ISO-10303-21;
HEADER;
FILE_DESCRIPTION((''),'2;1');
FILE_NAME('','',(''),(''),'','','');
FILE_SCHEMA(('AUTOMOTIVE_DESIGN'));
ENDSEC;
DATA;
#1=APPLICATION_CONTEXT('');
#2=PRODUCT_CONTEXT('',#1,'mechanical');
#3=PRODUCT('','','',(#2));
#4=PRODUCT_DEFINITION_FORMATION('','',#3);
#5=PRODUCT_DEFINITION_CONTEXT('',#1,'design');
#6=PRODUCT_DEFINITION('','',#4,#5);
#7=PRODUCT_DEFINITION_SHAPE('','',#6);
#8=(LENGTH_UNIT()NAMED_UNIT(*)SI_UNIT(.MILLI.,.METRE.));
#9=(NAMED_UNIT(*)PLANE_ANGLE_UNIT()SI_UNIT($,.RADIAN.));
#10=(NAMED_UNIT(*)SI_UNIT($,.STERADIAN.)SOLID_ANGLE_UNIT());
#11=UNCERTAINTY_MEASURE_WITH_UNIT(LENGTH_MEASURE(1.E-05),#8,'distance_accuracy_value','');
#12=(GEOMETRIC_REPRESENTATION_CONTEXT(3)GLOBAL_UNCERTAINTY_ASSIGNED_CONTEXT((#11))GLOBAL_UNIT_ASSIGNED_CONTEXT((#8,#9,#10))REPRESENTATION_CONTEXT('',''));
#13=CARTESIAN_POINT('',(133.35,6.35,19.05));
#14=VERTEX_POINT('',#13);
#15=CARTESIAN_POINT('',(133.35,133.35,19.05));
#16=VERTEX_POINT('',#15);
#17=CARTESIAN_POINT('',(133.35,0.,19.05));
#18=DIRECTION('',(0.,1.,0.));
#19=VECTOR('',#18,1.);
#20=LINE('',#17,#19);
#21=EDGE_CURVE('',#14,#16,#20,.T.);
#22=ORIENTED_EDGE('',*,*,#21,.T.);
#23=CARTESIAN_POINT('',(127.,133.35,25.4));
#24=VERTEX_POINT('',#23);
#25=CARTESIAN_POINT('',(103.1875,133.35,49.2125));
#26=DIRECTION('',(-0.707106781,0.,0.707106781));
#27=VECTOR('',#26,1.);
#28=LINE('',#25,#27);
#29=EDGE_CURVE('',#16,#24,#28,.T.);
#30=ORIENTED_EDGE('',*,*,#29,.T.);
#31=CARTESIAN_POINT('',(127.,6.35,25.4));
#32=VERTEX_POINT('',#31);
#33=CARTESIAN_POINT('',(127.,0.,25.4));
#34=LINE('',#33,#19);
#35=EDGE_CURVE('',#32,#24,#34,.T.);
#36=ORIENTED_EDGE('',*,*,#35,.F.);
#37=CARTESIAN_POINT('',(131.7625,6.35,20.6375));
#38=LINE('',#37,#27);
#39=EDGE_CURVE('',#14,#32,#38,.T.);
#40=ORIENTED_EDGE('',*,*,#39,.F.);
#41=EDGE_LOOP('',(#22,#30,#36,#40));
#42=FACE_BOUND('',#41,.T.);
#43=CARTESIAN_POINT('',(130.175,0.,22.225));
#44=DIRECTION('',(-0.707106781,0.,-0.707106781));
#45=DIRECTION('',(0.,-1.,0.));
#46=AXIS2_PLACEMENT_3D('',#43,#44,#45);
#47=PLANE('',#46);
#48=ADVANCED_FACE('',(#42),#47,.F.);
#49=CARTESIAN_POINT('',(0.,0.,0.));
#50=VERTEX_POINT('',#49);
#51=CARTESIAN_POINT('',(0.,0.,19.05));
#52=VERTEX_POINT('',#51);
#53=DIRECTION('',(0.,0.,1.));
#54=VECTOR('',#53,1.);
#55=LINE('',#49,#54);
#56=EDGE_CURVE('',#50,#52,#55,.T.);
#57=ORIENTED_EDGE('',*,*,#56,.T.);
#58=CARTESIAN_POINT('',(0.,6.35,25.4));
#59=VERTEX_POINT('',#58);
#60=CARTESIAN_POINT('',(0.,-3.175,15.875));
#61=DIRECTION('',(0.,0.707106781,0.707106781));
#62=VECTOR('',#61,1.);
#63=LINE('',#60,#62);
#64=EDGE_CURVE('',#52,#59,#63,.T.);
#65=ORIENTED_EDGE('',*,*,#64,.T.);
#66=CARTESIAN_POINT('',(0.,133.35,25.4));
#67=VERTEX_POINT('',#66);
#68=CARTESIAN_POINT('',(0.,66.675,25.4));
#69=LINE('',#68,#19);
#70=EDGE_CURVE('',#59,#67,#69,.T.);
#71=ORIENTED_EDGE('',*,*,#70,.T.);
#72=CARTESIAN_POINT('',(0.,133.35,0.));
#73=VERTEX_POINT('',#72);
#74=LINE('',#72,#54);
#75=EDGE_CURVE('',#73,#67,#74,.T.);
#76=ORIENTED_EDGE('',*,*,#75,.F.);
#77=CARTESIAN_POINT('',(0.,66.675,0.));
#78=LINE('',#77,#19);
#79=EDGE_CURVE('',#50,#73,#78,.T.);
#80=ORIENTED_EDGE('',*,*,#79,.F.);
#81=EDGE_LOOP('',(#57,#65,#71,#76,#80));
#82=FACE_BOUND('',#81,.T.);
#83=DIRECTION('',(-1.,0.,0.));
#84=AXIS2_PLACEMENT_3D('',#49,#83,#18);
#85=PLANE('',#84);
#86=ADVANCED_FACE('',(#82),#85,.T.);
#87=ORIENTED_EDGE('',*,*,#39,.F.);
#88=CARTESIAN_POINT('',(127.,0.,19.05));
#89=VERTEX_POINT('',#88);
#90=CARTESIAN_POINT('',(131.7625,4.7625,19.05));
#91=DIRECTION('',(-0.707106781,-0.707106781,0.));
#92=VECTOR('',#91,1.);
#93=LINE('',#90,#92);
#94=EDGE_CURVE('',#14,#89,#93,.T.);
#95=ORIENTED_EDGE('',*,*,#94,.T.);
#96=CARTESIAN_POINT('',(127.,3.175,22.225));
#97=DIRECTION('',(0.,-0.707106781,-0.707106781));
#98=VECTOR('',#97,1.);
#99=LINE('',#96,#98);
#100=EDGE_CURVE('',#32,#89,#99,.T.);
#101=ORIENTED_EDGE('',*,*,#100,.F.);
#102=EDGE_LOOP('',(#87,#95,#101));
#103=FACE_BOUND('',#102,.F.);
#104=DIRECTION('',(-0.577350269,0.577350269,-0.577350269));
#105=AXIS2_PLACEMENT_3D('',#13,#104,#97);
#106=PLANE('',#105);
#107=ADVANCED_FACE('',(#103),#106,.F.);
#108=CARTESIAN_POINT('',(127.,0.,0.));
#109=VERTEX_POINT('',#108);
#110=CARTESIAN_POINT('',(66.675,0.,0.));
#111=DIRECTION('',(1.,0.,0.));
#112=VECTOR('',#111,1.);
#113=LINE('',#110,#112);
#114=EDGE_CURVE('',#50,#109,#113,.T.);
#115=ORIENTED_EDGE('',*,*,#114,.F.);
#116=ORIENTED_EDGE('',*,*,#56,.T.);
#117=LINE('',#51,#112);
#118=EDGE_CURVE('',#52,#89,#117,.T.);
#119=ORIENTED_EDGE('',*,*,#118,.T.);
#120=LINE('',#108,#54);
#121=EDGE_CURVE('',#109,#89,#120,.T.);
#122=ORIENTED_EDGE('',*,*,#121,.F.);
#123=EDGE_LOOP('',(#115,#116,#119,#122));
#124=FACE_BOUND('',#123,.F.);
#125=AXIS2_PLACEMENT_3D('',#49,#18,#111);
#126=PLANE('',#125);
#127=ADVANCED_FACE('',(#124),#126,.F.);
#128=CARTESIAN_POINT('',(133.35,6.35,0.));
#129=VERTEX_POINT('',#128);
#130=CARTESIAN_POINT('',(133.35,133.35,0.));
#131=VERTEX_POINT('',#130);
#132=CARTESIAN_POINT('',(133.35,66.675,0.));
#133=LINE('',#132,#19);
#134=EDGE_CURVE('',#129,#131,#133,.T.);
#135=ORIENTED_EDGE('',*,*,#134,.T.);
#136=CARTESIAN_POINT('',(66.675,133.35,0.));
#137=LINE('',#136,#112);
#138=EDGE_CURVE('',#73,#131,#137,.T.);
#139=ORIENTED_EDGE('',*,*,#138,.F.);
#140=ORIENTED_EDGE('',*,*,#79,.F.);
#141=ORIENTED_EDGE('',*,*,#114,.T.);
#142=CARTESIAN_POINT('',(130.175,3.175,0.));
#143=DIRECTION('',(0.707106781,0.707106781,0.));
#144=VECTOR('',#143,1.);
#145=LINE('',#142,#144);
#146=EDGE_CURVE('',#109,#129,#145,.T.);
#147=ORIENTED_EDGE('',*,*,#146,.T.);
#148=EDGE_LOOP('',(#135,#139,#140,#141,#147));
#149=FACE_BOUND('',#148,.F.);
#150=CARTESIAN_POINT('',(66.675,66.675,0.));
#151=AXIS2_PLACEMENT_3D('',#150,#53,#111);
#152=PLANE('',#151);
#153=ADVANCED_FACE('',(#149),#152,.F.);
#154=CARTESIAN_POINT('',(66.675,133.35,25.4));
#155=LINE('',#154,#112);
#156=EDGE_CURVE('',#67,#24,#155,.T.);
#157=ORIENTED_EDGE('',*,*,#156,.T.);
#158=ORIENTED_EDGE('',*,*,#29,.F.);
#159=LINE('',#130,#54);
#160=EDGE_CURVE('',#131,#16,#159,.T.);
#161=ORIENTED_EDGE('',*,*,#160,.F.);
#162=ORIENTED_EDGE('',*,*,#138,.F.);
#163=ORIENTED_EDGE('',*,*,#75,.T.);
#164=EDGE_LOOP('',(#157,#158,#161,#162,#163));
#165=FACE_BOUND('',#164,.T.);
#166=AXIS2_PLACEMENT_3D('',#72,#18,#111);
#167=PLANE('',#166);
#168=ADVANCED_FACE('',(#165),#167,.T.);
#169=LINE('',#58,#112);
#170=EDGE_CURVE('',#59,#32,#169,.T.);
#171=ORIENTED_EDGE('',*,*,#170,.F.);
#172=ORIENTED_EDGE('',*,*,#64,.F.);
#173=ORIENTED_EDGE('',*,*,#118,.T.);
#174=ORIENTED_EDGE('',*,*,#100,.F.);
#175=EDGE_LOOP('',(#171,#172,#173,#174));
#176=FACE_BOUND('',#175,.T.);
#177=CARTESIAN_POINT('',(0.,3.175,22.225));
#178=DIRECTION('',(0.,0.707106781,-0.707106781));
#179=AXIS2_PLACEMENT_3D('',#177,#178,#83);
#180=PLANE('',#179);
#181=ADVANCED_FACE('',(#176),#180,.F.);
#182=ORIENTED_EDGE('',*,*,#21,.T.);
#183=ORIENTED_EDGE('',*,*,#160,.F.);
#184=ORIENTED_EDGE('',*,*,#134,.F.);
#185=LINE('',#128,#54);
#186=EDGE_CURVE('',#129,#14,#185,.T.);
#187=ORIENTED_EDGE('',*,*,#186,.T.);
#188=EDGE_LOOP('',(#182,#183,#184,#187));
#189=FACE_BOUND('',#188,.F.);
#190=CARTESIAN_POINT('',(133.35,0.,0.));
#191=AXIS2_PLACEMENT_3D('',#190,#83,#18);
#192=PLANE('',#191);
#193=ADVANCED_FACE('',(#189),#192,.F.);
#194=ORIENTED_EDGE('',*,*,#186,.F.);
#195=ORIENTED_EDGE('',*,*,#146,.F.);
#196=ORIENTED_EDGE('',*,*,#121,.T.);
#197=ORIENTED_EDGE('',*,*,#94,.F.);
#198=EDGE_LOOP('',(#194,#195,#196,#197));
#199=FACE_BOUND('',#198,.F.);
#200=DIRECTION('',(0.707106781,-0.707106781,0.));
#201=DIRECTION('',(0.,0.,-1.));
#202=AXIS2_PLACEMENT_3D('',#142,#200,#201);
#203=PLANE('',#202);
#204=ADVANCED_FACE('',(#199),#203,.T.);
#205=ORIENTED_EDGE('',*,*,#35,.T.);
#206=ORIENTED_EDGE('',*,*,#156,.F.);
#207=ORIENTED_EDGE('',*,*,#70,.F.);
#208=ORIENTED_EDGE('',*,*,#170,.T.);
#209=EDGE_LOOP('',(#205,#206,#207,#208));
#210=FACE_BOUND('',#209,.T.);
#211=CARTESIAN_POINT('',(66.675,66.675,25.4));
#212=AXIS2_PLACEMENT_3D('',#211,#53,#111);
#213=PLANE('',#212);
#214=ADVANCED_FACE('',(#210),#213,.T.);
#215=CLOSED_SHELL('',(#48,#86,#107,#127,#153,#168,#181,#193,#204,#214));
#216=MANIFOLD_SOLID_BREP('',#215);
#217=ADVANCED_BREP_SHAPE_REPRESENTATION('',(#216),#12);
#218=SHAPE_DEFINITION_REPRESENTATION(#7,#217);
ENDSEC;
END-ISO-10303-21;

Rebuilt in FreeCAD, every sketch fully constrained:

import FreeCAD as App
import Part
import Sketcher

V = App.Vector
Q = App.Units.Quantity


def edges_at(feature, points):
    """Names of the edges that pass closest to the given points."""
    edges = feature.Shape.Edges
    near = lambda p: min(range(len(edges)), key=lambda i: edges[i].distToShape(Part.Vertex(*p))[0])
    return sorted({f"Edge{near(p) + 1}" for p in points})

doc = App.newDocument("Part")
body = doc.addObject("PartDesign::Body", "Body")

# Sketch on XY plane
sketch1 = doc.addObject("Sketcher::SketchObject", "Sketch")
body.addObject(sketch1)
sketch1.AttachmentSupport = (doc.XY_Plane, [""])
sketch1.MapMode = "FlatFace"
sketch1.addGeometry([
    Part.LineSegment(V(0, 133, 0), V(0, 0, 0)),
    Part.LineSegment(V(0, 0, 0), V(133, 0, 0)),
    Part.LineSegment(V(133, 0, 0), V(133, 133, 0)),
    Part.LineSegment(V(133, 133, 0), V(0, 133, 0)),
], False)
sketch1.addConstraint([
    Sketcher.Constraint("Coincident", 0, 2, 1, 1),
    Sketcher.Constraint("Coincident", 1, 2, 2, 1),
    Sketcher.Constraint("Coincident", 2, 2, 3, 1),
    Sketcher.Constraint("Coincident", 3, 2, 0, 1),
    Sketcher.Constraint("Vertical", 0),
    Sketcher.Constraint("Horizontal", 1),
    Sketcher.Constraint("Vertical", 2),
    Sketcher.Constraint("Horizontal", 3),
    Sketcher.Constraint("Coincident", 0, 2, -1, 1),
    Sketcher.Constraint("Equal", 3, 0),
    Sketcher.Constraint("DistanceX", 1, 1, 1, 2, Q("5.25 in")),
])
pad1 = doc.addObject("PartDesign::Pad", "Pad")
body.addObject(pad1)
pad1.Profile = sketch1
pad1.Length = Q("1 in")
doc.recompute()

chamfer = doc.addObject("PartDesign::Chamfer", "Chamfer")
body.addObject(chamfer)
chamfer.Base = (pad1, edges_at(pad1, [(66.675, 0, 25.4), (133.35, 66.675, 25.4), (133.35, 0, 12.7)]))
chamfer.Size = Q("0.25 in")

doc.recompute()
